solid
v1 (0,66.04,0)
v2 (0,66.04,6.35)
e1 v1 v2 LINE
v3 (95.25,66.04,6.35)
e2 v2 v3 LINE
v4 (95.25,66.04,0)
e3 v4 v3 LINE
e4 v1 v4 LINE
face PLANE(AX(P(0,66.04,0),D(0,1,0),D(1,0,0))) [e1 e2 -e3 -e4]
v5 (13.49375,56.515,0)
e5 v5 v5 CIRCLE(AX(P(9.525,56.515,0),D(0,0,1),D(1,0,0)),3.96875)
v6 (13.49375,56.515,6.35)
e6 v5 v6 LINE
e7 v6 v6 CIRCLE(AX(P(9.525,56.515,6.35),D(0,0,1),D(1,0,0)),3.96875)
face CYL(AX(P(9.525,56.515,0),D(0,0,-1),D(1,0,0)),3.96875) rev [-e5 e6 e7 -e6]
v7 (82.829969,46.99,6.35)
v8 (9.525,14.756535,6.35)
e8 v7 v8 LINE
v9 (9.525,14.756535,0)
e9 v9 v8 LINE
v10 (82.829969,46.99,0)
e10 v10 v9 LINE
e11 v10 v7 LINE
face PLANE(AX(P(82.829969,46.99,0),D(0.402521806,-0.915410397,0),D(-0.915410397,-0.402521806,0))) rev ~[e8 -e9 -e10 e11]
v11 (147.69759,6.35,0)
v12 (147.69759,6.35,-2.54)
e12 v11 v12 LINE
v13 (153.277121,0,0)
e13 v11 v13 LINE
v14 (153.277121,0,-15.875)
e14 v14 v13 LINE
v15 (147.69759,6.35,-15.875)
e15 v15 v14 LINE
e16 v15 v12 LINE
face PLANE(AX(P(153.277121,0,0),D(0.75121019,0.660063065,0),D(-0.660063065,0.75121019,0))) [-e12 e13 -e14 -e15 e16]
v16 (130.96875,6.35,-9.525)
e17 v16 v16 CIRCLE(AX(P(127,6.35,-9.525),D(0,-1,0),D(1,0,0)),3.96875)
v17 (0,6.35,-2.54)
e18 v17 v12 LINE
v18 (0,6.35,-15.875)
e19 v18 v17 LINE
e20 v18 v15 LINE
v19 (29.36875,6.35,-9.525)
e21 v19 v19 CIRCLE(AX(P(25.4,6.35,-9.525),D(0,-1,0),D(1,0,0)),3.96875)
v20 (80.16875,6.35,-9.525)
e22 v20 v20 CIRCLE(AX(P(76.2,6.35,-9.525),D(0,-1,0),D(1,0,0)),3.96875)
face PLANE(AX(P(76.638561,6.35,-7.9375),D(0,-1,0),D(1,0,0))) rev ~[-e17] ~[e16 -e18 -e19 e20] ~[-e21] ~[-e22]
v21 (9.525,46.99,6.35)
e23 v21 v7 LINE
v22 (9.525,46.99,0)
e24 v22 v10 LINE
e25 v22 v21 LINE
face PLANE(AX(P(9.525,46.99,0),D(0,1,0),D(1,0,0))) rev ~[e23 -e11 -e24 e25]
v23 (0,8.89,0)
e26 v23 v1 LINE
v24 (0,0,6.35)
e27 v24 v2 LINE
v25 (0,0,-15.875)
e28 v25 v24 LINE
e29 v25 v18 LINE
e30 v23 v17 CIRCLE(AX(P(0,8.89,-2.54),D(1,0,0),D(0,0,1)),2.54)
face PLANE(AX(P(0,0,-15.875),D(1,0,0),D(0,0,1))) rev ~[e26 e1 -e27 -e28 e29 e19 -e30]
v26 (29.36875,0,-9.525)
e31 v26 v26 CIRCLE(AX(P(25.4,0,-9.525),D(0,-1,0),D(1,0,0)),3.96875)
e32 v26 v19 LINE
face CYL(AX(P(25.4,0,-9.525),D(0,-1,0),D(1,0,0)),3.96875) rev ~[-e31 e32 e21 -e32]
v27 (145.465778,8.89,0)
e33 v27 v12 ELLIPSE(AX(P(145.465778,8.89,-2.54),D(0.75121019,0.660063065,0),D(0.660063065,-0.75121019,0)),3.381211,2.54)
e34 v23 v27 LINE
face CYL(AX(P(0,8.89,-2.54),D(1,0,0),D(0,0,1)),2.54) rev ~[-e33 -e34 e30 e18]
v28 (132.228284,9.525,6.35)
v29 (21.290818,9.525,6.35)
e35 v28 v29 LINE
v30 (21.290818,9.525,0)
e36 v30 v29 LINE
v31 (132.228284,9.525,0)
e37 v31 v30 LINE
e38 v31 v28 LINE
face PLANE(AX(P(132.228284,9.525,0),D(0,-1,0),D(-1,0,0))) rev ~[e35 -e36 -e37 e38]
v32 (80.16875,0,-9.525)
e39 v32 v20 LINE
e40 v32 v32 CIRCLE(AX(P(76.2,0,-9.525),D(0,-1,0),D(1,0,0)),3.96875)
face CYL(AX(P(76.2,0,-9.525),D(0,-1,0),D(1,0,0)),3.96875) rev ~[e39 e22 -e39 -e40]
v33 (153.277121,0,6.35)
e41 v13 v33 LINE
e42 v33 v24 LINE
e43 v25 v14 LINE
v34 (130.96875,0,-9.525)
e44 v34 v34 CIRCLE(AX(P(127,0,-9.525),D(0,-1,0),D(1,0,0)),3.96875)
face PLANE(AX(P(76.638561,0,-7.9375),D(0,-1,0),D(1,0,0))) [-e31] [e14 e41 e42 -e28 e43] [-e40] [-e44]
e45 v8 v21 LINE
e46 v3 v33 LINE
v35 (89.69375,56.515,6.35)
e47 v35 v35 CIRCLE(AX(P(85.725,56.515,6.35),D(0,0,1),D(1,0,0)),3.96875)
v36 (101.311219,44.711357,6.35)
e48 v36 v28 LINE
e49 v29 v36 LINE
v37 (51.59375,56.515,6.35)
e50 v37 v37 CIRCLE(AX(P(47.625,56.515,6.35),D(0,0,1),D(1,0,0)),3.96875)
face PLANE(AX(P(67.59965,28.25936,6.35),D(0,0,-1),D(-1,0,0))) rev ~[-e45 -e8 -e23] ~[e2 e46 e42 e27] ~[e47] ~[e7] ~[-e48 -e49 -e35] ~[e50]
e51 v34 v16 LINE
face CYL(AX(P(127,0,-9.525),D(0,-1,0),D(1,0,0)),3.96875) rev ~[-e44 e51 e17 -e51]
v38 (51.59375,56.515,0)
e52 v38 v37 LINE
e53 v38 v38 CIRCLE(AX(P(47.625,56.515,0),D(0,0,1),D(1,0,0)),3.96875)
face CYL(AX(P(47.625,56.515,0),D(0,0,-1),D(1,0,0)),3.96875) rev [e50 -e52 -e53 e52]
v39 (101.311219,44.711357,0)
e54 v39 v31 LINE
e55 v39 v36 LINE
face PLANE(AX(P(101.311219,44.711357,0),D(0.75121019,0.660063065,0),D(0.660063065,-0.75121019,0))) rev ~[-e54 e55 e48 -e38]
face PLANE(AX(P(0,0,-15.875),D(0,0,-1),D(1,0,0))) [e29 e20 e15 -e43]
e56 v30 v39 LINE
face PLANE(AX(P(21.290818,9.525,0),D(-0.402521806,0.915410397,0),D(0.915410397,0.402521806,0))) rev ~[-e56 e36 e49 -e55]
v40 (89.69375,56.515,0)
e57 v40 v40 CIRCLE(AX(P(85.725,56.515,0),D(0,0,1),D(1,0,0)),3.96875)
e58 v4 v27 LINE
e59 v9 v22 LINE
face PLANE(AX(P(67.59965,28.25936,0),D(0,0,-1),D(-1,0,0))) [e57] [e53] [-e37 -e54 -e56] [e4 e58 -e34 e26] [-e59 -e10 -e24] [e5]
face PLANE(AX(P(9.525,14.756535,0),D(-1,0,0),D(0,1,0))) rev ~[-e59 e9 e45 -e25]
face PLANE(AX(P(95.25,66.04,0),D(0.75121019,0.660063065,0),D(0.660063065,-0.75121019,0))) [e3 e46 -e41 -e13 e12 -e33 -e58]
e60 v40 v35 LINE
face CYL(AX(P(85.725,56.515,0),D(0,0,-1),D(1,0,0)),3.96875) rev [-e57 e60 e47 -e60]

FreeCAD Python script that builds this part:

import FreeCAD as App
import Part
import Sketcher

V = App.Vector
Q = App.Units.Quantity


def edges_at(feature, points):
    """Names of the edges that pass closest to the given points."""
    edges = feature.Shape.Edges
    near = lambda p: min(range(len(edges)), key=lambda i: edges[i].distToShape(Part.Vertex(*p))[0])
    return sorted({f"Edge{near(p) + 1}" for p in points})


def add_polygon(sketch, points):
    """Adds a closed chain of lines whose ends are joined by coincident constraints."""
    first, n = sketch.GeometryCount, len(points)
    for a, b in zip(points, points[1:] + points[:1]):
        sketch.addGeometry(Part.LineSegment(App.Vector(*a, 0), App.Vector(*b, 0)), False)
    for i in range(n):
        sketch.addConstraint(Sketcher.Constraint("Coincident", first + i, 2, first + (i + 1) % n, 1))

doc = App.newDocument("Part")
body = doc.addObject("PartDesign::Body", "Body")

# Sketch on XY plane
sketch1 = body.newObject("Sketcher::SketchObject", "Sketch")
sketch1.AttachmentSupport = (doc.getObject("XY_Plane"), [""])
sketch1.MapMode = "FlatFace"
add_polygon(sketch1, [(0, 66), (0, 0), (153.3, 0), (95.2, 66)])  # lines 0-3
add_polygon(sketch1, [(21.3, 9.5), (101.3, 44.7), (132.2, 9.5)])  # lines 4-6
add_polygon(sketch1, [(9.5, 14.8), (9.5, 47), (82.8, 47)])  # lines 7-9
sketch1.addGeometry(Part.Circle(V(85.7, 56.5, 0), V(0, 0, 1), 4), False)  # 10
sketch1.addGeometry(Part.Circle(V(47.6, 56.5, 0), V(0, 0, 1), 4), False)  # 11
sketch1.addGeometry(Part.Circle(V(9.5, 56.5, 0), V(0, 0, 1), 4), False)  # 12
sketch1.addConstraint([
    Sketcher.Constraint("Vertical", 0),
    Sketcher.Constraint("Horizontal", 1),
    Sketcher.Constraint("Horizontal", 3),
    Sketcher.Constraint("Horizontal", 6),
    Sketcher.Constraint("Vertical", 7),
    Sketcher.Constraint("Horizontal", 8),
    Sketcher.Constraint("Coincident", 0, 2, -1, 1),
    Sketcher.Constraint("Equal", 10, 11),
    Sketcher.Constraint("Equal", 11, 12),
    Sketcher.Constraint("Parallel", 2, 5),
    Sketcher.Constraint("Parallel", 4, 9),
    Sketcher.Constraint("Horizontal", 10, 3, 11, 3),
    Sketcher.Constraint("Horizontal", 11, 3, 12, 3),
    Sketcher.Constraint("Vertical", 12, 3, 7, 2),
    Sketcher.Constraint("Diameter", 10, Q("0.3125 in")),
    Sketcher.Constraint("DistanceY", 0, 2, 0, 1, Q("2.6 in")),
    Sketcher.Constraint("DistanceX", 12, 3, 10, 3, Q("3 in")),
    Sketcher.Constraint("DistanceX", 3, 2, 3, 1, Q("3.75 in")),
    Sketcher.Constraint("DistanceX", 11, 3, 10, 3, Q("1.5 in")),
    Sketcher.Constraint("DistanceY", -1, 1, 7, 2, Q("1.85 in")),
    Sketcher.Constraint("DistanceY", 5, 2, 10, 3, Q("1.85 in")),
    Sketcher.Constraint("DistanceX", -1, 1, 10, 3, Q("3.375 in")),
    Sketcher.Constraint("DistanceY", -1, 1, 10, 3, Q("2.225 in")),
    Sketcher.Constraint("DistanceX", 1, 1, 1, 2, Q("153.277121 mm")),
    Sketcher.Constraint("DistanceX", 8, 1, 8, 2, Q("73.304969 mm")),
    Sketcher.Constraint("DistanceX", 4, 2, 1, 2, Q("51.965902 mm")),
    Sketcher.Constraint("DistanceX", 6, 2, 6, 1, Q("110.937467 mm")),
    Sketcher.Constraint("DistanceY", 7, 1, 7, 2, Q("32.233465 mm")),
])
pad1 = body.newObject("PartDesign::Pad", "Pad")
pad1.Profile = sketch1
pad1.Length = Q("0.25 in")

# Sketch on XZ plane
sketch2 = body.newObject("Sketcher::SketchObject", "Sketch001")
sketch2.AttachmentSupport = (doc.getObject("XZ_Plane"), [""])
sketch2.MapMode = "FlatFace"
add_polygon(sketch2, [(0, 0), (0, -15.9), (153.3, -15.9), (153.3, 0)])  # lines 0-3
sketch2.addGeometry(Part.Circle(V(25.4, -9.5, 0), V(0, 0, 1), 4), False)  # 4
sketch2.addGeometry(Part.Circle(V(76.2, -9.5, 0), V(0, 0, 1), 4), False)  # 5
sketch2.addGeometry(Part.Circle(V(127, -9.5, 0), V(0, 0, 1), 4), False)  # 6
sketch2.addConstraint([
    Sketcher.Constraint("Vertical", 0),
    Sketcher.Constraint("Horizontal", 1),
    Sketcher.Constraint("Vertical", 2),
    Sketcher.Constraint("Horizontal", 3),
    Sketcher.Constraint("Coincident", 3, 2, -1, 1),
    Sketcher.Constraint("Equal", 4, 5),
    Sketcher.Constraint("Equal", 5, 6),
    Sketcher.Constraint("Horizontal", 4, 3, 5, 3),
    Sketcher.Constraint("Horizontal", 5, 3, 6, 3),
    Sketcher.Constraint("Diameter", 4, Q("0.3125 in")),
    Sketcher.Constraint("DistanceX", -1, 1, 4, 3, Q("1 in")),
    Sketcher.Constraint("DistanceX", -1, 1, 5, 3, Q("3 in")),
    Sketcher.Constraint("DistanceX", -1, 1, 6, 3, Q("5 in")),
    Sketcher.Constraint("DistanceY", 0, 2, 0, 1, Q("0.625 in")),
    Sketcher.Constraint("DistanceY", 0, 2, 4, 3, Q("0.25 in")),
    Sketcher.Constraint("DistanceX", 1, 1, 1, 2, Q("153.277121 mm")),
])
pad2 = body.newObject("PartDesign::Pad", "Pad001")
pad2.Profile = sketch2
pad2.Length = Q("0.25 in")
pad2.Reversed = True
doc.recompute()

fillet = body.newObject("PartDesign::Fillet", "Fillet")
fillet.Base = (pad2, edges_at(pad2, [(73.849, 6.35, 0)]))
fillet.Radius = Q("0.1 in")

# Sketch on XY plane
sketch3 = body.newObject("Sketcher::SketchObject", "Sketch002")
sketch3.AttachmentSupport = (doc.getObject("XY_Plane"), [""])
sketch3.MapMode = "FlatFace"
add_polygon(sketch3, [(153, 0), (144, 11), (164, 14), (165, 4)])  # lines 0-3
sketch3.addConstraint([
    Sketcher.Constraint("PointOnObject", 3, 2, -1),
    Sketcher.Constraint("DistanceY", 2, 2, 1, 2, Q("9.306898 mm")),
    Sketcher.Constraint("DistanceX", 3, 2, 1, 2, Q("10.284901 mm")),
    Sketcher.Constraint("Distance", 0, Q("14.224218 mm")),
    Sketcher.Constraint("Distance", 1, Q("19.88158 mm")),
    Sketcher.Constraint("Distance", 2, Q("9.46472 mm")),
    Sketcher.Constraint("Distance", 3, Q("12.734622 mm")),
    Sketcher.Constraint("DistanceX", -1, 1, 0, 2, Q("143.88824 mm")),
])
pocket1 = body.newObject("PartDesign::Pocket", "Pocket")
pocket1.Profile = sketch3
pocket1.Type = "ThroughAll"

doc.recompute()
